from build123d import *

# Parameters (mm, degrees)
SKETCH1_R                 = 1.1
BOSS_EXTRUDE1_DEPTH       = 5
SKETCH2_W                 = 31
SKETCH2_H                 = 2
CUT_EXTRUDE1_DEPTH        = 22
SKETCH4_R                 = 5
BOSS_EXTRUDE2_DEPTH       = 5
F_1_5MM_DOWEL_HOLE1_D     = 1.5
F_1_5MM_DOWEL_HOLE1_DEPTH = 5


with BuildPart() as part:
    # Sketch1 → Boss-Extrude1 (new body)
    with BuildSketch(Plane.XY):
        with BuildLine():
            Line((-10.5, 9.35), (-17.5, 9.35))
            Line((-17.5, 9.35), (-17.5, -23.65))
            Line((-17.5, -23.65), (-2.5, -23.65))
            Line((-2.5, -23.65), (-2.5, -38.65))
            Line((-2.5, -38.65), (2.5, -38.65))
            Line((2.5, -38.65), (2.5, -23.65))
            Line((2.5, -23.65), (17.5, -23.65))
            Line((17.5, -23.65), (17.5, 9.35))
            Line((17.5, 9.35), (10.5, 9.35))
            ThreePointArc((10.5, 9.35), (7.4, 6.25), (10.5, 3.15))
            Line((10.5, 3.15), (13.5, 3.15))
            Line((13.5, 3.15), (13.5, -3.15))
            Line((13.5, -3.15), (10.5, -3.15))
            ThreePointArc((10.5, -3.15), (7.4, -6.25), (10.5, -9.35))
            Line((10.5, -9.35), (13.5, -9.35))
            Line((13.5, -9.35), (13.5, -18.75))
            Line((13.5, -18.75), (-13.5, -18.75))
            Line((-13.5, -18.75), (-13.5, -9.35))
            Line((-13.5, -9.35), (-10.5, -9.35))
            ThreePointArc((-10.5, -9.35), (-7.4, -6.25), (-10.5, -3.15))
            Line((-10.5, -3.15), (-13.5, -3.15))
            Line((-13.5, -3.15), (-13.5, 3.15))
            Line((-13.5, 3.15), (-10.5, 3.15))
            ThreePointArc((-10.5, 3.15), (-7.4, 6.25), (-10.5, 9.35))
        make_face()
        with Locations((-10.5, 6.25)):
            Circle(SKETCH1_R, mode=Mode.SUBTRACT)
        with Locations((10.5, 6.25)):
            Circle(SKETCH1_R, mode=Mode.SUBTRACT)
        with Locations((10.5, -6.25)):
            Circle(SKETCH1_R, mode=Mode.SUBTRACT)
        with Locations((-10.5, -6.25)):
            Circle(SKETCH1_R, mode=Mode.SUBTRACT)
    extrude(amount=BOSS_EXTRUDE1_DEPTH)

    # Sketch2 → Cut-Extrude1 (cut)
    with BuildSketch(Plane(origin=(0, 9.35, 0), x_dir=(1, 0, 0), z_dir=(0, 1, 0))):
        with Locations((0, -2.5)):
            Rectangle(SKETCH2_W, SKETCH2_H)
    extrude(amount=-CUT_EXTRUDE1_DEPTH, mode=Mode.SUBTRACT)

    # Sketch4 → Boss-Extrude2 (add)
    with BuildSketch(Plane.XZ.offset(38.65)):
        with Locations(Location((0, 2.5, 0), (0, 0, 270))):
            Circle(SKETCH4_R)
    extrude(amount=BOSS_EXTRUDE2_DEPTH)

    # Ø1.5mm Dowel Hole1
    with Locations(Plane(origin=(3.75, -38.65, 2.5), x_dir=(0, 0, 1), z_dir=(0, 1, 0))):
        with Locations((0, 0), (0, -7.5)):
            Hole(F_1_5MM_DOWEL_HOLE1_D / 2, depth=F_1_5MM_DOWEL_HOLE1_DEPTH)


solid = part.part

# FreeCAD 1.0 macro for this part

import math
import FreeCAD as App
import Part
import Sketcher
Q = App.Units.Quantity

doc = App.newDocument("Part")
body = doc.addObject("PartDesign::Body", "Body")

sketch1 = body.newObject("Sketcher::SketchObject", "Sketch")
sketch1.AttachmentSupport = (doc.getObject("XY_Plane"), [""])
sketch1.MapMode = "FlatFace"
sketch1.addGeometry(Part.LineSegment(App.Vector(-10.5, 9.3, 0), App.Vector(-17.5, 9.3, 0)), False)
sketch1.addGeometry(Part.LineSegment(App.Vector(-17.5, 9.3, 0), App.Vector(-17.5, -23.6, 0)), False)
sketch1.addGeometry(Part.LineSegment(App.Vector(-17.5, -23.6, 0), App.Vector(-2.5, -23.6, 0)), False)
sketch1.addGeometry(Part.LineSegment(App.Vector(-2.5, -23.6, 0), App.Vector(-2.5, -38.6, 0)), False)
sketch1.addGeometry(Part.LineSegment(App.Vector(-2.5, -38.6, 0), App.Vector(2.5, -38.6, 0)), False)
sketch1.addGeometry(Part.LineSegment(App.Vector(2.5, -38.6, 0), App.Vector(2.5, -23.6, 0)), False)
sketch1.addGeometry(Part.LineSegment(App.Vector(2.5, -23.6, 0), App.Vector(17.5, -23.6, 0)), False)
sketch1.addGeometry(Part.LineSegment(App.Vector(17.5, -23.6, 0), App.Vector(17.5, 9.3, 0)), False)
sketch1.addGeometry(Part.LineSegment(App.Vector(17.5, 9.3, 0), App.Vector(10.5, 9.3, 0)), False)
sketch1.addGeometry(Part.ArcOfCircle(Part.Circle(App.Vector(10.5, 6.2, 0), App.Vector(0, 0, 1), 3.1), math.radians(90), math.radians(270)), False)
sketch1.addGeometry(Part.LineSegment(App.Vector(10.5, 3.1, 0), App.Vector(13.5, 3.1, 0)), False)
sketch1.addGeometry(Part.LineSegment(App.Vector(13.5, 3.1, 0), App.Vector(13.5, -3.1, 0)), False)
sketch1.addGeometry(Part.LineSegment(App.Vector(13.5, -3.1, 0), App.Vector(10.5, -3.1, 0)), False)
sketch1.addGeometry(Part.ArcOfCircle(Part.Circle(App.Vector(10.5, -6.2, 0), App.Vector(0, 0, 1), 3.1), math.radians(90), math.radians(270)), False)
sketch1.addGeometry(Part.LineSegment(App.Vector(10.5, -9.3, 0), App.Vector(13.5, -9.3, 0)), False)
sketch1.addGeometry(Part.LineSegment(App.Vector(13.5, -9.3, 0), App.Vector(13.5, -18.8, 0)), False)
sketch1.addGeometry(Part.LineSegment(App.Vector(13.5, -18.8, 0), App.Vector(-13.5, -18.8, 0)), False)
sketch1.addGeometry(Part.LineSegment(App.Vector(-13.5, -18.8, 0), App.Vector(-13.5, -9.3, 0)), False)
sketch1.addGeometry(Part.LineSegment(App.Vector(-13.5, -9.3, 0), App.Vector(-10.5, -9.3, 0)), False)
sketch1.addGeometry(Part.ArcOfCircle(Part.Circle(App.Vector(-10.5, -6.2, 0), App.Vector(0, 0, 1), 3.1), math.radians(-90), math.radians(90)), False)
sketch1.addGeometry(Part.LineSegment(App.Vector(-10.5, -3.1, 0), App.Vector(-13.5, -3.1, 0)), False)
sketch1.addGeometry(Part.LineSegment(App.Vector(-13.5, -3.1, 0), App.Vector(-13.5, 3.1, 0)), False)
sketch1.addGeometry(Part.LineSegment(App.Vector(-13.5, 3.1, 0), App.Vector(-10.5, 3.1, 0)), False)
sketch1.addGeometry(Part.ArcOfCircle(Part.Circle(App.Vector(-10.5, 6.2, 0), App.Vector(0, 0, 1), 3.1), math.radians(-90), math.radians(90)), False)
sketch1.addGeometry(Part.Circle(App.Vector(-10.5, -6.2, 0), App.Vector(0, 0, 1), 1.1), False)
sketch1.addGeometry(Part.Circle(App.Vector(10.5, -6.2, 0), App.Vector(0, 0, 1), 1.1), False)
sketch1.addGeometry(Part.Circle(App.Vector(-10.5, 6.2, 0), App.Vector(0, 0, 1), 1.1), False)
sketch1.addGeometry(Part.Circle(App.Vector(10.5, 6.2, 0), App.Vector(0, 0, 1), 1.1), False)
sketch1.addConstraint(Sketcher.Constraint("Coincident", 0, 2, 1, 1))
sketch1.addConstraint(Sketcher.Constraint("Coincident", 1, 2, 2, 1))
sketch1.addConstraint(Sketcher.Constraint("Coincident", 2, 2, 3, 1))
sketch1.addConstraint(Sketcher.Constraint("Coincident", 3, 2, 4, 1))
sketch1.addConstraint(Sketcher.Constraint("Coincident", 4, 2, 5, 1))
sketch1.addConstraint(Sketcher.Constraint("Coincident", 5, 2, 6, 1))
sketch1.addConstraint(Sketcher.Constraint("Coincident", 6, 2, 7, 1))
sketch1.addConstraint(Sketcher.Constraint("Coincident", 7, 2, 8, 1))
sketch1.addConstraint(Sketcher.Constraint("Tangent", 8, 2, 9, 1))
sketch1.addConstraint(Sketcher.Constraint("Tangent", 9, 2, 10, 1))
sketch1.addConstraint(Sketcher.Constraint("Coincident", 10, 2, 11, 1))
sketch1.addConstraint(Sketcher.Constraint("Coincident", 11, 2, 12, 1))
sketch1.addConstraint(Sketcher.Constraint("Tangent", 12, 2, 13, 1))
sketch1.addConstraint(Sketcher.Constraint("Tangent", 13, 2, 14, 1))
sketch1.addConstraint(Sketcher.Constraint("Coincident", 14, 2, 15, 1))
sketch1.addConstraint(Sketcher.Constraint("Coincident", 15, 2, 16, 1))
sketch1.addConstraint(Sketcher.Constraint("Coincident", 16, 2, 17, 1))
sketch1.addConstraint(Sketcher.Constraint("Coincident", 17, 2, 18, 1))
sketch1.addConstraint(Sketcher.Constraint("Tangent", 18, 2, 19, 1))
sketch1.addConstraint(Sketcher.Constraint("Tangent", 19, 2, 20, 1))
sketch1.addConstraint(Sketcher.Constraint("Coincident", 20, 2, 21, 1))
sketch1.addConstraint(Sketcher.Constraint("Coincident", 21, 2, 22, 1))
sketch1.addConstraint(Sketcher.Constraint("Tangent", 22, 2, 23, 1))
sketch1.addConstraint(Sketcher.Constraint("Tangent", 23, 2, 0, 1))
sketch1.addConstraint(Sketcher.Constraint("Horizontal", 0))
sketch1.addConstraint(Sketcher.Constraint("Vertical", 1))
sketch1.addConstraint(Sketcher.Constraint("Horizontal", 2))
sketch1.addConstraint(Sketcher.Constraint("Vertical", 3))
sketch1.addConstraint(Sketcher.Constraint("Horizontal", 4))
sketch1.addConstraint(Sketcher.Constraint("Vertical", 5))
sketch1.addConstraint(Sketcher.Constraint("Horizontal", 6))
sketch1.addConstraint(Sketcher.Constraint("Vertical", 7))
sketch1.addConstraint(Sketcher.Constraint("Horizontal", 8))
sketch1.addConstraint(Sketcher.Constraint("Horizontal", 10))
sketch1.addConstraint(Sketcher.Constraint("Vertical", 11))
sketch1.addConstraint(Sketcher.Constraint("Horizontal", 12))
sketch1.addConstraint(Sketcher.Constraint("Horizontal", 14))
sketch1.addConstraint(Sketcher.Constraint("Vertical", 15))
sketch1.addConstraint(Sketcher.Constraint("Horizontal", 16))
sketch1.addConstraint(Sketcher.Constraint("Vertical", 17))
sketch1.addConstraint(Sketcher.Constraint("Horizontal", 18))
sketch1.addConstraint(Sketcher.Constraint("Horizontal", 20))
sketch1.addConstraint(Sketcher.Constraint("Vertical", 21))
sketch1.addConstraint(Sketcher.Constraint("Horizontal", 22))
sketch1.addConstraint(Sketcher.Constraint("Coincident", 24, 3, 19, 3))
sketch1.addConstraint(Sketcher.Constraint("Coincident", 25, 3, 13, 3))
sketch1.addConstraint(Sketcher.Constraint("Coincident", 26, 3, 23, 3))
sketch1.addConstraint(Sketcher.Constraint("Coincident", 27, 3, 9, 3))
sketch1.addConstraint(Sketcher.Constraint("Equal", 9, 13))
sketch1.addConstraint(Sketcher.Constraint("Equal", 13, 19))
sketch1.addConstraint(Sketcher.Constraint("Equal", 19, 23))
sketch1.addConstraint(Sketcher.Constraint("Equal", 24, 25))
sketch1.addConstraint(Sketcher.Constraint("Equal", 25, 26))
sketch1.addConstraint(Sketcher.Constraint("Equal", 26, 27))
sketch1.addConstraint(Sketcher.Constraint("Symmetric", 9, 3, 19, 3, -1, 1))
sketch1.addConstraint(Sketcher.Constraint("Symmetric", 13, 3, 23, 3, -1, 1))
sketch1.addConstraint(Sketcher.Constraint("Symmetric", 13, 3, 19, 3, -2))
sketch1.addConstraint(Sketcher.Constraint("Symmetric", 2, 2, 5, 2, -2))
sketch1.addConstraint(Sketcher.Constraint("Vertical", 11, 2, 14, 2))
sketch1.addConstraint(Sketcher.Constraint("Vertical", 17, 2, 20, 2))
sketch1.addConstraint(Sketcher.Constraint("Equal", 2, 6))
sketch1.addConstraint(Sketcher.Constraint("Equal", 14, 18))
sketch1.addConstraint(Sketcher.Constraint("Equal", 6, 3))
sketch1.addConstraint(Sketcher.Constraint("Diameter", 24, Q("2.2 mm")))
sketch1.addConstraint(Sketcher.Constraint("Radius", 9, Q("3.1 mm")))
sketch1.addConstraint(Sketcher.Constraint("DistanceX", 0, 2, 0, 1, Q("7 mm")))
sketch1.addConstraint(Sketcher.Constraint("DistanceX", 2, 1, 2, 2, Q("15 mm")))
sketch1.addConstraint(Sketcher.Constraint("DistanceX", 4, 1, 4, 2, Q("5 mm")))
sketch1.addConstraint(Sketcher.Constraint("DistanceX", 10, 1, 10, 2, Q("3 mm")))
sketch1.addConstraint(Sketcher.Constraint("DistanceY", 1, 2, 1, 1, Q("33 mm")))
sketch1.addConstraint(Sketcher.Constraint("DistanceY", 11, 2, 11, 1, Q("6.3 mm")))
sketch1.addConstraint(Sketcher.Constraint("DistanceY", 15, 2, 15, 1, Q("9.4 mm")))
pad1 = body.newObject("PartDesign::Pad", "Pad")
pad1.Profile = sketch1
pad1.Length = 5

sketch2 = body.newObject("Sketcher::SketchObject", "Sketch001")
sketch2.AttachmentSupport = (doc.getObject("XZ_Plane"), [""])
sketch2.MapMode = "FlatFace"
sketch2.AttachmentOffset = App.Placement(App.Vector(0, 0, -9.35), App.Rotation())
sketch2.addGeometry(Part.LineSegment(App.Vector(-15.5, 1.5, 0), App.Vector(-15.5, 3.5, 0)), False)
sketch2.addGeometry(Part.LineSegment(App.Vector(-15.5, 3.5, 0), App.Vector(15.5, 3.5, 0)), False)
sketch2.addGeometry(Part.LineSegment(App.Vector(15.5, 3.5, 0), App.Vector(15.5, 1.5, 0)), False)
sketch2.addGeometry(Part.LineSegment(App.Vector(15.5, 1.5, 0), App.Vector(-15.5, 1.5, 0)), False)
sketch2.addConstraint(Sketcher.Constraint("Coincident", 0, 2, 1, 1))
sketch2.addConstraint(Sketcher.Constraint("Coincident", 1, 2, 2, 1))
sketch2.addConstraint(Sketcher.Constraint("Coincident", 2, 2, 3, 1))
sketch2.addConstraint(Sketcher.Constraint("Coincident", 3, 2, 0, 1))
sketch2.addConstraint(Sketcher.Constraint("Vertical", 0))
sketch2.addConstraint(Sketcher.Constraint("Horizontal", 1))
sketch2.addConstraint(Sketcher.Constraint("Vertical", 2))
sketch2.addConstraint(Sketcher.Constraint("Horizontal", 3))
sketch2.addConstraint(Sketcher.Constraint("DistanceX", 1, 1, 1, 2, Q("31 mm")))
sketch2.addConstraint(Sketcher.Constraint("DistanceY", 0, 1, 0, 2, Q("2 mm")))
sketch2.addConstraint(Sketcher.Constraint("DistanceX", 0, 2, -1, 1, Q("15.5 mm")))
sketch2.addConstraint(Sketcher.Constraint("DistanceY", -1, 1, 0, 2, Q("3.5 mm")))
pocket1 = body.newObject("PartDesign::Pocket", "Pocket")
pocket1.Profile = sketch2
pocket1.Length = 22
pocket1.Reversed = True

sketch3 = body.newObject("Sketcher::SketchObject", "Sketch002")
sketch3.AttachmentSupport = (doc.getObject("XZ_Plane"), [""])
sketch3.MapMode = "FlatFace"
sketch3.AttachmentOffset = App.Placement(App.Vector(0, 0, 38.65), App.Rotation())
sketch3.addGeometry(Part.Circle(App.Vector(0, 2, 0), App.Vector(0, 0, 1), 5), False)
sketch3.addConstraint(Sketcher.Constraint("PointOnObject", 0, 3, -2))
sketch3.addConstraint(Sketcher.Constraint("Diameter", 0, Q("10 mm")))
sketch3.addConstraint(Sketcher.Constraint("DistanceY", -1, 1, 0, 3, Q("2.5 mm")))
pad2 = body.newObject("PartDesign::Pad", "Pad001")
pad2.Profile = sketch3
pad2.Length = 5

sketch4 = body.newObject("Sketcher::SketchObject", "Sketch003")
sketch4.AttachmentSupport = (doc.getObject("XZ_Plane"), [""])
sketch4.MapMode = "FlatFace"
sketch4.AttachmentOffset = App.Placement(App.Vector(0, 0, 38.65), App.Rotation())
sketch4.addGeometry(Part.Circle(App.Vector(3.8, 2.5, 0), App.Vector(0, 0, 1), 0.8), False)
sketch4.addGeometry(Part.Circle(App.Vector(-3.8, 2.5, 0), App.Vector(0, 0, 1), 0.8), False)
sketch4.addConstraint(Sketcher.Constraint("Equal", 0, 1))
sketch4.addConstraint(Sketcher.Constraint("Symmetric", 0, 3, 1, 3, -2))
sketch4.addConstraint(Sketcher.Constraint("Diameter", 0, Q("1.5 mm")))
sketch4.addConstraint(Sketcher.Constraint("DistanceY", -1, 1, 0, 3, Q("2.5 mm")))
sketch4.addConstraint(Sketcher.Constraint("DistanceX", 1, 3, 0, 3, Q("7.5 mm")))
doc.recompute()
hole = body.newObject("PartDesign::Hole", "Hole")
hole.Profile = sketch4
hole.ThreadType = "None"
hole.Diameter = 1.5
hole.DepthType = "Dimension"
hole.Depth = 5
hole.DrillPoint = "Flat"
hole.Reversed = True

doc.recompute()
